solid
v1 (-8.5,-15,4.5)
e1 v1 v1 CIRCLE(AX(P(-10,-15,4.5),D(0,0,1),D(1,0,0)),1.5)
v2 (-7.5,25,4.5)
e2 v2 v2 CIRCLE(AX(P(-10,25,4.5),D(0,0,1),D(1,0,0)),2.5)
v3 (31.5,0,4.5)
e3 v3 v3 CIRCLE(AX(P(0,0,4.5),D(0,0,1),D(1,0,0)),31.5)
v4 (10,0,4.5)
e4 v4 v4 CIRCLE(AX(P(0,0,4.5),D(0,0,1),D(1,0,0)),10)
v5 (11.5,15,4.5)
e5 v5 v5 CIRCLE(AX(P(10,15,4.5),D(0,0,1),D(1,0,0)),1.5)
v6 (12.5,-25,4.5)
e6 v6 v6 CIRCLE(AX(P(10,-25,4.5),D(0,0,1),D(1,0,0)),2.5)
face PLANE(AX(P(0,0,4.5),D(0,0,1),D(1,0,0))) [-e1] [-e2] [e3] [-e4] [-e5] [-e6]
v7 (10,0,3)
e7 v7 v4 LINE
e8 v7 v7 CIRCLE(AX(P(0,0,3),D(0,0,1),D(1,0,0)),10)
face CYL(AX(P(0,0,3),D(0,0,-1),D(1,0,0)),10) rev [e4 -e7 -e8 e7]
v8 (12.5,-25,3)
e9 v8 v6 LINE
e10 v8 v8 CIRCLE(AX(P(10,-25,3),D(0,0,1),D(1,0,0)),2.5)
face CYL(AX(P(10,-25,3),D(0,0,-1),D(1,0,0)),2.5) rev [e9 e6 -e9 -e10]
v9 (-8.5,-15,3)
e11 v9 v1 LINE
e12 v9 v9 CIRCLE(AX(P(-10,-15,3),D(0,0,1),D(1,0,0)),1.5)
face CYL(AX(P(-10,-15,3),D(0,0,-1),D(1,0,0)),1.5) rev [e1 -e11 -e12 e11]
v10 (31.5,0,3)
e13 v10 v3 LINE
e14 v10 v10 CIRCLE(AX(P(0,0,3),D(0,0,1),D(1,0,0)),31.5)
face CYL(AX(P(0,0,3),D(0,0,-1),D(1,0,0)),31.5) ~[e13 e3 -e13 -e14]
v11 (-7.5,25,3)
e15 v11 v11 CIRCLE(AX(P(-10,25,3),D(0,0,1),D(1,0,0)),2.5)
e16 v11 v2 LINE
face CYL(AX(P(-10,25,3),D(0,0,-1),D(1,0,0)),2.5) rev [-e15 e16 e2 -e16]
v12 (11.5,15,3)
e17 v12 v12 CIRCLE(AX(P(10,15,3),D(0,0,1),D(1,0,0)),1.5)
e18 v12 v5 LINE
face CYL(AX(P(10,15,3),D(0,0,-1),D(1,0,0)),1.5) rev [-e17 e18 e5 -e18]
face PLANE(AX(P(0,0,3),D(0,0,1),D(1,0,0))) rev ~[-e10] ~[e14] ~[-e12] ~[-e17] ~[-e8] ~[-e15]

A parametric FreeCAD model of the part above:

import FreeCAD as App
import Part
import Sketcher

doc = App.newDocument("Part")
body = doc.addObject("PartDesign::Body", "Body")

# Sketch on XY plane
sketch1 = body.newObject("Sketcher::SketchObject", "Sketch")
sketch1.AttachmentSupport = (doc.getObject("XY_Plane"), [""])
sketch1.MapMode = "FlatFace"
sketch1.AttachmentOffset = App.Placement(App.Vector(0, 0, 3), App.Rotation())
sketch1.addGeometry([
    Part.Circle(App.Vector(0, 0, 0), App.Vector(0, 0, 1), 31.5),  # 0
    Part.Circle(App.Vector(-10, -15, 0), App.Vector(0, 0, 1), 1.5),  # 1
    Part.Circle(App.Vector(10, -25, 0), App.Vector(0, 0, 1), 2.5),  # 2
    Part.Circle(App.Vector(-10, 25, 0), App.Vector(0, 0, 1), 2.5),  # 3
    Part.Circle(App.Vector(0, 0, 0), App.Vector(0, 0, 1), 10),  # 4
    Part.Circle(App.Vector(10, 15, 0), App.Vector(0, 0, 1), 1.5),  # 5
], False)
sketch1.addConstraint([
    Sketcher.Constraint("Coincident", 0, 3, -1, 1),
    Sketcher.Constraint("Coincident", 4, 3, -1, 1),
    Sketcher.Constraint("Equal", 2, 3),
    Sketcher.Constraint("Equal", 1, 5),
    Sketcher.Constraint("Symmetric", 2, 3, 3, 3, -1, 1),
    Sketcher.Constraint("Symmetric", 1, 3, 5, 3, -1, 1),
    Sketcher.Constraint("Vertical", 1, 3, 3, 3),
    Sketcher.Constraint("Diameter", 0, 63.0),
    Sketcher.Constraint("Diameter", 1, 3.0),
    Sketcher.Constraint("Diameter", 2, 5.0),
    Sketcher.Constraint("Diameter", 4, 20.0),
    Sketcher.Constraint("DistanceX", 1, 3, -1, 1, 10.0),
    Sketcher.Constraint("DistanceY", 1, 3, -1, 1, 15.0),
    Sketcher.Constraint("DistanceY", 2, 3, -1, 1, 25.0),
])
pad1 = body.newObject("PartDesign::Pad", "Pad")
pad1.Profile = sketch1
pad1.Length = 1.5

doc.recompute()
